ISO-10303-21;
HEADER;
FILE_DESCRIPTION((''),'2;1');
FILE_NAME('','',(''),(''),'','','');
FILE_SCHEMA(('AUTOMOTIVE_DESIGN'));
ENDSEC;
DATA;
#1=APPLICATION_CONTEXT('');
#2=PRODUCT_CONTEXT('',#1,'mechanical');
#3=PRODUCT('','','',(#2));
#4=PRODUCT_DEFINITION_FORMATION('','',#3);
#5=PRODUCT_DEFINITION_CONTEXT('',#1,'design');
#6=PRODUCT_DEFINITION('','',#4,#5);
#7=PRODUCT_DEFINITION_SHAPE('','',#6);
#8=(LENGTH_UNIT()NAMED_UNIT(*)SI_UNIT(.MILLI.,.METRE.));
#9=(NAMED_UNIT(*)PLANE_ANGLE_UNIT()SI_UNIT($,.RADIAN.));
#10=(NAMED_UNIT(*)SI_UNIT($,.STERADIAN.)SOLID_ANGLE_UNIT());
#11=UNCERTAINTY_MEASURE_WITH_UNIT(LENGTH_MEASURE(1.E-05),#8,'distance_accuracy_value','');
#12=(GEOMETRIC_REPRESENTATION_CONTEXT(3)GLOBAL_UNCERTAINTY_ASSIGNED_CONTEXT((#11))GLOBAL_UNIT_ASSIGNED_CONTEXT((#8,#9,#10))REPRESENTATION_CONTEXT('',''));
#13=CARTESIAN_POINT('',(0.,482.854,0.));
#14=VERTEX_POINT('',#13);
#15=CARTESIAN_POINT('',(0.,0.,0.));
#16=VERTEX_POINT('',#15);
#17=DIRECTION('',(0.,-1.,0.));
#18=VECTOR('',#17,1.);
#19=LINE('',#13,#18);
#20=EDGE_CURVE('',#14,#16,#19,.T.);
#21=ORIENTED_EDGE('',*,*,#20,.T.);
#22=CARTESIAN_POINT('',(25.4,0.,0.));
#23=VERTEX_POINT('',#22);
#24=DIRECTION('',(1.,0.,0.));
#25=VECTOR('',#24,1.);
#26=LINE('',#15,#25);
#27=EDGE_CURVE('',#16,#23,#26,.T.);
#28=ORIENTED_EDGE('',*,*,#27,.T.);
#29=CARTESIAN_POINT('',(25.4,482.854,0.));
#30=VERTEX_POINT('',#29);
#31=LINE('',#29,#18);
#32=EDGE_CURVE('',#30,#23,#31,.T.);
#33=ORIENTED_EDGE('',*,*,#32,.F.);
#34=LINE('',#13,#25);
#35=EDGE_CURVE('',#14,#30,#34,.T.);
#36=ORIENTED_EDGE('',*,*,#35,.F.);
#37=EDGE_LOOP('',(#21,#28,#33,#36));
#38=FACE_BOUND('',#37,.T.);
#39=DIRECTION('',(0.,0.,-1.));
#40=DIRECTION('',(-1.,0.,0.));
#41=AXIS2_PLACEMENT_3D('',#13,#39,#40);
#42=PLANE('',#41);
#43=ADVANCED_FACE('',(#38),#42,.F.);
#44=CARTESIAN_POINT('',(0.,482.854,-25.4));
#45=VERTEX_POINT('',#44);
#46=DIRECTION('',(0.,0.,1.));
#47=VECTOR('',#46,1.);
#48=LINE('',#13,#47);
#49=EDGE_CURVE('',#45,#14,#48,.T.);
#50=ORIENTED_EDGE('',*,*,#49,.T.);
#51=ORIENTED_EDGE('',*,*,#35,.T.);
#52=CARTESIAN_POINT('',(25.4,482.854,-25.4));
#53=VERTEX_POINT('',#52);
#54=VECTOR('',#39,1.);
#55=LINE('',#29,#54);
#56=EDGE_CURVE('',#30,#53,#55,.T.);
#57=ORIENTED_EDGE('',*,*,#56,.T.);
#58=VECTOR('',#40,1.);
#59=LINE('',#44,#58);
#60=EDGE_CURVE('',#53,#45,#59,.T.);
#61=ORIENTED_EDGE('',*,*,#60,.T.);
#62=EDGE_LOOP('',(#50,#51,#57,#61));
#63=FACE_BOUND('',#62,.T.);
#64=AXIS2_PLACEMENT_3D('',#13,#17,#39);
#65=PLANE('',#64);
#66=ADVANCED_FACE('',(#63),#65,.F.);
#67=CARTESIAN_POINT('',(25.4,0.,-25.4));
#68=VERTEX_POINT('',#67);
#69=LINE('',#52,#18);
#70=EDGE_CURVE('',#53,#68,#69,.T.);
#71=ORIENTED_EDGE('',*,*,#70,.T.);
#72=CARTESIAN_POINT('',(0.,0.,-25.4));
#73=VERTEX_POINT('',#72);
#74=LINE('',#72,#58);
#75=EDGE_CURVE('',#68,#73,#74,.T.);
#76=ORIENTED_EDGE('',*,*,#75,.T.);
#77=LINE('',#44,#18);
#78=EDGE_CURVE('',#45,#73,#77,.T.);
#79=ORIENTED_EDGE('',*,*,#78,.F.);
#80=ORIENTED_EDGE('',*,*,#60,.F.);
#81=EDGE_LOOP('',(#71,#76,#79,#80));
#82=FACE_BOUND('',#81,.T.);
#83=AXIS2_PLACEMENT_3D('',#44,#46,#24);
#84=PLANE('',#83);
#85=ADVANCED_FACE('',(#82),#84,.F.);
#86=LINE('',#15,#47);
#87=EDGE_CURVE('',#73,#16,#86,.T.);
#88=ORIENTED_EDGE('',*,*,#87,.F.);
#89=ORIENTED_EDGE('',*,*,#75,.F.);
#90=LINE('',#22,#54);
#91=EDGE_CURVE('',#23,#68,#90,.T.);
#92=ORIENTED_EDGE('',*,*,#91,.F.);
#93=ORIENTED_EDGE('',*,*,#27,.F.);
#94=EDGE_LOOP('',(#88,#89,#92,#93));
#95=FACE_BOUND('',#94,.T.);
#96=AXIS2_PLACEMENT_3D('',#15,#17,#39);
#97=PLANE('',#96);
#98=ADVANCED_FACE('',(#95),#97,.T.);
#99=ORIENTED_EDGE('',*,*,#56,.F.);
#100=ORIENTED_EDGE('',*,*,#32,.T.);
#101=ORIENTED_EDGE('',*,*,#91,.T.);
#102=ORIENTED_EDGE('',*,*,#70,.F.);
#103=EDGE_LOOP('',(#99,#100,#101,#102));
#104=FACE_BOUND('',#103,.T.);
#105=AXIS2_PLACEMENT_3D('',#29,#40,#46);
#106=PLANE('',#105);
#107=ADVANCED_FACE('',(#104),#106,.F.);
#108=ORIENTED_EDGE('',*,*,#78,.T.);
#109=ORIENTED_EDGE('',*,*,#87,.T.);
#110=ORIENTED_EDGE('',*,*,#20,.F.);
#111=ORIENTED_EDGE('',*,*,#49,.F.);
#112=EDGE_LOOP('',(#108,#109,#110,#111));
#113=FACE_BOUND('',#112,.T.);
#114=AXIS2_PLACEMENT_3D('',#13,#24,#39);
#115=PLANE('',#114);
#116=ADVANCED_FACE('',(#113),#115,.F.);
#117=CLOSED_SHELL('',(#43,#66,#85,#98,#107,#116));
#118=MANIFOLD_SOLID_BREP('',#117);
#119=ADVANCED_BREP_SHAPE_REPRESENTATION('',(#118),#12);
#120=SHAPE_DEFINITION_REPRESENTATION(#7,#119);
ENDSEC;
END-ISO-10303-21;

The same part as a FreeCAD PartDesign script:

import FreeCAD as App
import Part
import Sketcher

V = App.Vector
Q = App.Units.Quantity


def add_polygon(sketch, points):
    """Adds a closed chain of lines whose ends are joined by coincident constraints."""
    first, n = sketch.GeometryCount, len(points)
    for a, b in zip(points, points[1:] + points[:1]):
        sketch.addGeometry(Part.LineSegment(App.Vector(*a, 0), App.Vector(*b, 0)), False)
    for i in range(n):
        sketch.addConstraint(Sketcher.Constraint("Coincident", first + i, 2, first + (i + 1) % n, 1))

doc = App.newDocument("Part")
body = doc.addObject("PartDesign::Body", "Body")

# Sketch on XZ plane
sketch1 = doc.addObject("Sketcher::SketchObject", "Sketch")
body.addObject(sketch1)
sketch1.AttachmentSupport = (doc.XZ_Plane, [""])
sketch1.MapMode = "FlatFace"
add_polygon(sketch1, [(0, -25.4), (0, 0), (25.4, 0), (25.4, -25.4)])  # lines 0-3
sketch1.addConstraint([
    Sketcher.Constraint("Vertical", 0),
    Sketcher.Constraint("Horizontal", 1),
    Sketcher.Constraint("Vertical", 2),
    Sketcher.Constraint("Horizontal", 3),
    Sketcher.Constraint("Coincident", 0, 2, -1, 1),
    Sketcher.Constraint("Equal", 3, 0),
    Sketcher.Constraint("DistanceX", 1, 1, 1, 2, Q("1 in")),
])
pad1 = doc.addObject("PartDesign::Pad", "Pad")
body.addObject(pad1)
pad1.Profile = sketch1
pad1.Length = Q("19.01 in")
pad1.Reversed = True

doc.recompute()
